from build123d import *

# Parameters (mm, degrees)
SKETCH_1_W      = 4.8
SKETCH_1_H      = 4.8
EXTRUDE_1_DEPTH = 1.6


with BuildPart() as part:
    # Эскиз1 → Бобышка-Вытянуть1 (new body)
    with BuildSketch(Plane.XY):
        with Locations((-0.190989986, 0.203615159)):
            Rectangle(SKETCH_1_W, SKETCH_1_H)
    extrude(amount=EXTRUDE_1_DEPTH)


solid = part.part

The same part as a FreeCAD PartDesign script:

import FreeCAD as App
import Part
import Sketcher

V = App.Vector
Q = App.Units.Quantity


def add_polygon(sketch, points):
    """Adds a closed chain of lines whose ends are joined by coincident constraints."""
    first, n = sketch.GeometryCount, len(points)
    for a, b in zip(points, points[1:] + points[:1]):
        sketch.addGeometry(Part.LineSegment(App.Vector(*a, 0), App.Vector(*b, 0)), False)
    for i in range(n):
        sketch.addConstraint(Sketcher.Constraint("Coincident", first + i, 2, first + (i + 1) % n, 1))

doc = App.newDocument("Part")
body = doc.addObject("PartDesign::Body", "Body")

# Sketch on XY plane
sketch1 = body.newObject("Sketcher::SketchObject", "Sketch")
sketch1.AttachmentSupport = (doc.getObject("XY_Plane"), [""])
sketch1.MapMode = "FlatFace"
add_polygon(sketch1, [(-2.6, 2.6), (-2.6, -2.2), (2.2, -2.2), (2.2, 2.6)])  # lines 0-3
sketch1.addConstraint([
    Sketcher.Constraint("Vertical", 0),
    Sketcher.Constraint("Horizontal", 1),
    Sketcher.Constraint("Vertical", 2),
    Sketcher.Constraint("Horizontal", 3),
    Sketcher.Constraint("Equal", 3, 0),
    Sketcher.Constraint("DistanceX", 1, 1, 1, 2, Q("4.8 mm")),
    Sketcher.Constraint("DistanceX", 0, 2, -1, 1, Q("2.59099 mm")),
    Sketcher.Constraint("DistanceY", 0, 2, -1, 1, Q("2.196385 mm")),
])
pad1 = body.newObject("PartDesign::Pad", "Pad")
pad1.Profile = sketch1
pad1.Length = 1.6

doc.recompute()
